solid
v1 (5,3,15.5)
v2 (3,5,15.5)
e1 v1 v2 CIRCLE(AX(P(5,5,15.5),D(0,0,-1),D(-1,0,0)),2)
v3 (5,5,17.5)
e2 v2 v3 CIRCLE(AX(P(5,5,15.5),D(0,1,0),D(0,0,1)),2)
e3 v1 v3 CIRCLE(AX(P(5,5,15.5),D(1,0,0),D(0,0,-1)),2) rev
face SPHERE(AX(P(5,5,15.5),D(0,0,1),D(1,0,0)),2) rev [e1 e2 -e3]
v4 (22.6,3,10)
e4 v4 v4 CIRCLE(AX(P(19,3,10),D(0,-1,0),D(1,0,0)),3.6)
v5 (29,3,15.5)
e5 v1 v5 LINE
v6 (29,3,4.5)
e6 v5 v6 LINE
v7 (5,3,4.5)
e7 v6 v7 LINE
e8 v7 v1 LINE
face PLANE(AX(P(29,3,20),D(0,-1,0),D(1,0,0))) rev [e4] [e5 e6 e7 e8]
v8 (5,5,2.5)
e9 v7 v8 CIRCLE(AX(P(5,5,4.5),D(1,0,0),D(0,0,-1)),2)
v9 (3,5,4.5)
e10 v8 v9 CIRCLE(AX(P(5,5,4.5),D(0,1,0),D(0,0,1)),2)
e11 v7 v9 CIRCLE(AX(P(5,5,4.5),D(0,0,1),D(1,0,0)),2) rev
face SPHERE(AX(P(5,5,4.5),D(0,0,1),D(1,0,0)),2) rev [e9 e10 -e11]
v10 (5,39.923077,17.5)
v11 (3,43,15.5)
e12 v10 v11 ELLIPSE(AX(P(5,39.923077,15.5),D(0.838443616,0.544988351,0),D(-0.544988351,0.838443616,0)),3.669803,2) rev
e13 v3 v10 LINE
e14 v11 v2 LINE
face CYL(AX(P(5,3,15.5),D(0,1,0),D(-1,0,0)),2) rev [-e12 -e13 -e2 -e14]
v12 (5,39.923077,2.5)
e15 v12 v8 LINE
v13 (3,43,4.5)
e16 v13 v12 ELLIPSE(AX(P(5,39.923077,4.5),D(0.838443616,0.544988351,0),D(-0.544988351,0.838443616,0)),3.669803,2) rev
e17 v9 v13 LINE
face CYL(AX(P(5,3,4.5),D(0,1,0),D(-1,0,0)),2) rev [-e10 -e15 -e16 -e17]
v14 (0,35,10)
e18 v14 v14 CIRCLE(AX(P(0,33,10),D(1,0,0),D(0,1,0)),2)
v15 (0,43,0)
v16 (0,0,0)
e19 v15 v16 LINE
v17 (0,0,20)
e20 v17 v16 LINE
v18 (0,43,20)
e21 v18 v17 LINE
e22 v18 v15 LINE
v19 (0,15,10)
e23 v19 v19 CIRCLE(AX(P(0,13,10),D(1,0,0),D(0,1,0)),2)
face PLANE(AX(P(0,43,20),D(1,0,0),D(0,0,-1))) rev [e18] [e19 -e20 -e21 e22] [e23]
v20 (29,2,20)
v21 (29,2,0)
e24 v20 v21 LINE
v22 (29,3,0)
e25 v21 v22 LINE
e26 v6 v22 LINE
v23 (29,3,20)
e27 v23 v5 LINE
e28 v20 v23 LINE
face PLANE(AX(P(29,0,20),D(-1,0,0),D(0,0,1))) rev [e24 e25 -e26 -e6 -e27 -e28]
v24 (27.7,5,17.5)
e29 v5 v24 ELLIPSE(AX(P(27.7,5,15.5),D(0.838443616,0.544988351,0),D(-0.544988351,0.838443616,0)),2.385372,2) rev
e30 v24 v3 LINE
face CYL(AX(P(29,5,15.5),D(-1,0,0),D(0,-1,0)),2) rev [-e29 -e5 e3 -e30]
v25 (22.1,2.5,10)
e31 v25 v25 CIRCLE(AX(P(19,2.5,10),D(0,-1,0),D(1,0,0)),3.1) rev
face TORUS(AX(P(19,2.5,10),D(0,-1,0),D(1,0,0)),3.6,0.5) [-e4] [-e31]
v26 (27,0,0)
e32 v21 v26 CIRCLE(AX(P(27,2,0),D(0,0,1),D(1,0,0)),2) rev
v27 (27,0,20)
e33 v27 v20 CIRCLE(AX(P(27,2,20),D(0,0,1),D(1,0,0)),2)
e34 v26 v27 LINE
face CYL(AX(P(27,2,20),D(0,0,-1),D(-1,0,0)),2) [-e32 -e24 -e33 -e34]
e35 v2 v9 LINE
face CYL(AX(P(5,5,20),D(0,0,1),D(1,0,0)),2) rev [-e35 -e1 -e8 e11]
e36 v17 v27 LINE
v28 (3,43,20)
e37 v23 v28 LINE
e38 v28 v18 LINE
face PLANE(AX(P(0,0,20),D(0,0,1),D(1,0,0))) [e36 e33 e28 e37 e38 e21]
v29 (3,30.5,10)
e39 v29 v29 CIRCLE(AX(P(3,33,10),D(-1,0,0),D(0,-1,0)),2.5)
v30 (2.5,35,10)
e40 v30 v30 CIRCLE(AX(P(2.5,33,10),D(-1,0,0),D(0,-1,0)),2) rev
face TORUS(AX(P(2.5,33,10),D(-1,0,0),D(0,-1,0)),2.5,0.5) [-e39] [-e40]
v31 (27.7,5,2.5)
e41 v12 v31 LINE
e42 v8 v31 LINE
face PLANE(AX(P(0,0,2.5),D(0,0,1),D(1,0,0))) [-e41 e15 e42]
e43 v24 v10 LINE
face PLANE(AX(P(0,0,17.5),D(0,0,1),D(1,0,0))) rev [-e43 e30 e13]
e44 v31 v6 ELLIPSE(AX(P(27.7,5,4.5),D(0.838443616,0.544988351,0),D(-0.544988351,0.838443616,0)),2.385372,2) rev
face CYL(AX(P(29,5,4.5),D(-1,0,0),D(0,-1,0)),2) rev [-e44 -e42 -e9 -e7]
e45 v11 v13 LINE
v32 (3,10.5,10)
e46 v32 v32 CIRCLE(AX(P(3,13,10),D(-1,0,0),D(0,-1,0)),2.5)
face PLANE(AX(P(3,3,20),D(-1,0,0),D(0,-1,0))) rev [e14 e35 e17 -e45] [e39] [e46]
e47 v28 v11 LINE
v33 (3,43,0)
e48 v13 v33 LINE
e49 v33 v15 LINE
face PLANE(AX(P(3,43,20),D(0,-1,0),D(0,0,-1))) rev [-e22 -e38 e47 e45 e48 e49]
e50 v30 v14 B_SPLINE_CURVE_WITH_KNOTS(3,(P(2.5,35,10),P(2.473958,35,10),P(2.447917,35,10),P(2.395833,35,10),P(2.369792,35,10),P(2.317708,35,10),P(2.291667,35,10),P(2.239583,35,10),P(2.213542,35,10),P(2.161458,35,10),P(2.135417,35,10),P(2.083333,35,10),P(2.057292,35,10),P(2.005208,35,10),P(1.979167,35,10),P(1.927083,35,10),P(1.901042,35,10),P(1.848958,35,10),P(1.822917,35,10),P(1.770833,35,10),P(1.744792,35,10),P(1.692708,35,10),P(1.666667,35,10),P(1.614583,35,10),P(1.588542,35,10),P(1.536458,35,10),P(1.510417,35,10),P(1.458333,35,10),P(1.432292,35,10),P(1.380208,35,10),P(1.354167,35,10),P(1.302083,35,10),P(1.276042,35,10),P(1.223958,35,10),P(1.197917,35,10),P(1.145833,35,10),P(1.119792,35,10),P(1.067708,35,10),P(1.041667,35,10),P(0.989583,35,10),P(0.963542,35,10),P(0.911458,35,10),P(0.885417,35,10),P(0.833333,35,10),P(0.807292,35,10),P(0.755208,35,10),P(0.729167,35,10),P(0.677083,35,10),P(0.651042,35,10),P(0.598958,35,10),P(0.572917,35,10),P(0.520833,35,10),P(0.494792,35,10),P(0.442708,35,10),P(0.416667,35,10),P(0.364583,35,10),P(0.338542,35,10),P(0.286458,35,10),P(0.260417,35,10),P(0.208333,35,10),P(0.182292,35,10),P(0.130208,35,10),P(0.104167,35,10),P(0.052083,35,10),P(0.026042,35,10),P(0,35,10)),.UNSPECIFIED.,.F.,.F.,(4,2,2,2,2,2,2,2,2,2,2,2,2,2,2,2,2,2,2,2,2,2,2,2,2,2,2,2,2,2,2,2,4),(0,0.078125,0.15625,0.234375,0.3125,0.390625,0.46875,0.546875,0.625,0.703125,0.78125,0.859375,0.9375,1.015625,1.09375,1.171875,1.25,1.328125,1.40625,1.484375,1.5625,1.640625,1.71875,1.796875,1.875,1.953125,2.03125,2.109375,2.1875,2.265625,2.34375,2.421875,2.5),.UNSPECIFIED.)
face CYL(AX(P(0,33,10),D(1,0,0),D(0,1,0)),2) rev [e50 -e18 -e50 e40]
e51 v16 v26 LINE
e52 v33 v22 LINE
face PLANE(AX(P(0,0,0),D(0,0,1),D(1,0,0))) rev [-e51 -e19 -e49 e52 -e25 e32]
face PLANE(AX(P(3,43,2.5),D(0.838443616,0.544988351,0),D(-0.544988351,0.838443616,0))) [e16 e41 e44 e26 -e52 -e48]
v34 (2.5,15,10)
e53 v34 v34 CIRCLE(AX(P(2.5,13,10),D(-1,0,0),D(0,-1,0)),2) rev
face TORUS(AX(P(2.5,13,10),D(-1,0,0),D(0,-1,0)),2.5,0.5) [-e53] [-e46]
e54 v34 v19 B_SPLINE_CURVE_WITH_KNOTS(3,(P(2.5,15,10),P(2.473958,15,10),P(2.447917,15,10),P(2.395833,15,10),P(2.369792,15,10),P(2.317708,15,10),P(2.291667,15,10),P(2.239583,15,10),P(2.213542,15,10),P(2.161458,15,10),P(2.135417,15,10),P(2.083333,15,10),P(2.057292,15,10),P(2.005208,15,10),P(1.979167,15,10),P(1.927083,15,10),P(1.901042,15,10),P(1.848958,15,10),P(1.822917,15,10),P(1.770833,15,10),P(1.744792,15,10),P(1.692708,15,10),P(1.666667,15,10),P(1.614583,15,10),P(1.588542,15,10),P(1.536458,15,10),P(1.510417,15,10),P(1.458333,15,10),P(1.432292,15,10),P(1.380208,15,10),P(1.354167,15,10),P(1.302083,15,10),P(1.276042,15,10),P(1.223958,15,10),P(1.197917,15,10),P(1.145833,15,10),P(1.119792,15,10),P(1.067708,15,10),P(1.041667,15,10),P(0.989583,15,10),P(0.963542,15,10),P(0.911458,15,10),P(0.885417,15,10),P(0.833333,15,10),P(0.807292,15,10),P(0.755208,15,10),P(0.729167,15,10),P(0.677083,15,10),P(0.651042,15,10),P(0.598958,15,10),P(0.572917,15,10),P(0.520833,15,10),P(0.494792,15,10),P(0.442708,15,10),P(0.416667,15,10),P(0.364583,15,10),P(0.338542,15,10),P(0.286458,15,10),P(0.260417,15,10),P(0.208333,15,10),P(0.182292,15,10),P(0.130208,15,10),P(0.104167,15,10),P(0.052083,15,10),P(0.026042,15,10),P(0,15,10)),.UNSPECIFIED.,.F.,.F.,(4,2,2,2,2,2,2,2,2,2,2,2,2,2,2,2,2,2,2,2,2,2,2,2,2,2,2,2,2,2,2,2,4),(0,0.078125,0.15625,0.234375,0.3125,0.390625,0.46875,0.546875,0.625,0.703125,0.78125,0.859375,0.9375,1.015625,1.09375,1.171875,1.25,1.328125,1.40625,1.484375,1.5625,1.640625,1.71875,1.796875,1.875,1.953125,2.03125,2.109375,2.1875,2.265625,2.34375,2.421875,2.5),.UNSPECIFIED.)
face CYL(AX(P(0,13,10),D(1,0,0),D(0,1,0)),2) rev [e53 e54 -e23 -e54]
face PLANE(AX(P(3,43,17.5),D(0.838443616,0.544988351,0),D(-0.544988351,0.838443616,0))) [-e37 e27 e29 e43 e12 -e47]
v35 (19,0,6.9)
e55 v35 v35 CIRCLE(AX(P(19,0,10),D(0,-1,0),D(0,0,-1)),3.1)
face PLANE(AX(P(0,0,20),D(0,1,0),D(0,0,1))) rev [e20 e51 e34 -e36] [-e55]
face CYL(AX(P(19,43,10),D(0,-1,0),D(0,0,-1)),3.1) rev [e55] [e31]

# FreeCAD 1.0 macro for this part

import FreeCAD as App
import Part
import Sketcher

V = App.Vector
Q = App.Units.Quantity


def edges_at(feature, points):
    """Names of the edges that pass closest to the given points."""
    edges = feature.Shape.Edges
    near = lambda p: min(range(len(edges)), key=lambda i: edges[i].distToShape(Part.Vertex(*p))[0])
    return sorted({f"Edge{near(p) + 1}" for p in points})

doc = App.newDocument("Part")
body = doc.addObject("PartDesign::Body", "Body")

sketch1 = body.newObject("Sketcher::SketchObject", "Sketch")
sketch1.AttachmentSupport = (doc.getObject("XY_Plane"), [""])
sketch1.MapMode = "FlatFace"
sketch1.addGeometry([
    Part.LineSegment(V(0, 43, 0), V(0, 0, 0)),
    Part.LineSegment(V(0, 0, 0), V(29, 0, 0)),
    Part.LineSegment(V(29, 0, 0), V(29, 3, 0)),
    Part.LineSegment(V(29, 3, 0), V(3, 3, 0)),
    Part.LineSegment(V(3, 3, 0), V(3, 43, 0)),
    Part.LineSegment(V(3, 43, 0), V(0, 43, 0)),
], False)
sketch1.addConstraint([
    Sketcher.Constraint("Coincident", 0, 2, 1, 1),
    Sketcher.Constraint("Coincident", 1, 2, 2, 1),
    Sketcher.Constraint("Coincident", 2, 2, 3, 1),
    Sketcher.Constraint("Coincident", 3, 2, 4, 1),
    Sketcher.Constraint("Coincident", 4, 2, 5, 1),
    Sketcher.Constraint("Coincident", 5, 2, 0, 1),
    Sketcher.Constraint("Vertical", 0),
    Sketcher.Constraint("Horizontal", 1),
    Sketcher.Constraint("Vertical", 2),
    Sketcher.Constraint("Horizontal", 3),
    Sketcher.Constraint("Vertical", 4),
    Sketcher.Constraint("Horizontal", 5),
    Sketcher.Constraint("Coincident", 0, 2, -1, 1),
    Sketcher.Constraint("Equal", 5, 2),
    Sketcher.Constraint("DistanceX", 1, 1, 1, 2, Q("29 mm")),
    Sketcher.Constraint("DistanceX", 3, 2, 3, 1, Q("26 mm")),
    Sketcher.Constraint("DistanceY", 0, 2, 0, 1, Q("43 mm")),
])
pad1 = body.newObject("PartDesign::Pad", "Pad")
pad1.Profile = sketch1
pad1.Length = 20

sketch2 = body.newObject("Sketcher::SketchObject", "Sketch001")
sketch2.AttachmentSupport = (doc.getObject("XY_Plane"), [""])
sketch2.MapMode = "FlatFace"
sketch2.AttachmentOffset = App.Placement(V(0, 0, 20), App.Rotation())
sketch2.addGeometry([
    Part.LineSegment(V(29, 3, 0), V(3, 43, 0)),
    Part.LineSegment(V(3, 43, 0), V(3, 3, 0)),
    Part.LineSegment(V(3, 3, 0), V(29, 3, 0)),
], False)
sketch2.addConstraint([
    Sketcher.Constraint("Coincident", 0, 2, 1, 1),
    Sketcher.Constraint("Coincident", 1, 2, 2, 1),
    Sketcher.Constraint("Coincident", 2, 2, 0, 1),
    Sketcher.Constraint("Vertical", 1),
    Sketcher.Constraint("Horizontal", 2),
    Sketcher.Constraint("DistanceX", 2, 1, 2, 2, Q("26 mm")),
    Sketcher.Constraint("DistanceY", 1, 2, 1, 1, Q("40 mm")),
    Sketcher.Constraint("DistanceX", -1, 1, 0, 2, Q("3 mm")),
    Sketcher.Constraint("DistanceY", -1, 1, 0, 2, Q("43 mm")),
])
pad2 = body.newObject("PartDesign::Pad", "Pad001")
pad2.Profile = sketch2
pad2.Length = 2.5
pad2.Reversed = True

sketch3 = body.newObject("Sketcher::SketchObject", "Sketch002")
sketch3.AttachmentSupport = (doc.getObject("XY_Plane"), [""])
sketch3.MapMode = "FlatFace"
sketch3.addGeometry([
    Part.LineSegment(V(3, 43, 0), V(29, 3, 0)),
    Part.LineSegment(V(29, 3, 0), V(3, 3, 0)),
    Part.LineSegment(V(3, 3, 0), V(3, 43, 0)),
], False)
sketch3.addConstraint([
    Sketcher.Constraint("Coincident", 0, 2, 1, 1),
    Sketcher.Constraint("Coincident", 1, 2, 2, 1),
    Sketcher.Constraint("Coincident", 2, 2, 0, 1),
    Sketcher.Constraint("Horizontal", 1),
    Sketcher.Constraint("Vertical", 2),
    Sketcher.Constraint("DistanceX", 1, 2, 1, 1, Q("26 mm")),
    Sketcher.Constraint("DistanceY", 2, 1, 2, 2, Q("40 mm")),
    Sketcher.Constraint("DistanceX", -1, 1, 0, 2, Q("29 mm")),
    Sketcher.Constraint("DistanceY", -1, 1, 0, 2, Q("3 mm")),
])
pad3 = body.newObject("PartDesign::Pad", "Pad002")
pad3.Profile = sketch3
pad3.Length = 2.5

sketch4 = body.newObject("Sketcher::SketchObject", "Sketch003")
sketch4.AttachmentSupport = (doc.getObject("YZ_Plane"), [""])
sketch4.MapMode = "FlatFace"
sketch4.AttachmentOffset = App.Placement(V(0, 0, 3), App.Rotation())
sketch4.addGeometry([
    Part.Circle(V(33, 10, 0), V(0, 0, 1), 2),
    Part.Circle(V(13, 10, 0), V(0, 0, 1), 2),
], False)
sketch4.addConstraint([
    Sketcher.Constraint("Equal", 0, 1),
    Sketcher.Constraint("Horizontal", 0, 3, 1, 3),
    Sketcher.Constraint("Diameter", 0, Q("4 mm")),
    Sketcher.Constraint("DistanceX", -1, 1, 0, 3, Q("33 mm")),
    Sketcher.Constraint("DistanceY", -1, 1, 0, 3, Q("10 mm")),
    Sketcher.Constraint("DistanceX", -1, 1, 1, 3, Q("13 mm")),
])
pocket1 = body.newObject("PartDesign::Pocket", "Pocket")
pocket1.Profile = sketch4
pocket1.Type = "ThroughAll"

sketch5 = body.newObject("Sketcher::SketchObject", "Sketch004")
sketch5.AttachmentSupport = (doc.getObject("XZ_Plane"), [""])
sketch5.MapMode = "FlatFace"
sketch5.addGeometry(Part.Circle(V(19, 10, 0), V(0, 0, 1), 3.1), False)
sketch5.addConstraint([
    Sketcher.Constraint("Diameter", 0, Q("6.2 mm")),
    Sketcher.Constraint("DistanceX", -1, 1, 0, 3, Q("19 mm")),
    Sketcher.Constraint("DistanceY", -1, 1, 0, 3, Q("10 mm")),
])
pocket2 = body.newObject("PartDesign::Pocket", "Pocket001")
pocket2.Profile = sketch5
pocket2.Type = "ThroughAll"
doc.recompute()

fillet = body.newObject("PartDesign::Fillet", "Fillet")
fillet.Base = (pocket2, edges_at(pocket2, [
    (29, 0, 10),
    (3, 3, 10),
    (3, 23, 17.5),
    (16, 3, 17.5),
    (3, 23, 2.5),
    (16, 3, 2.5),
]))
fillet.Radius = 2
doc.recompute()

fillet2 = body.newObject("PartDesign::Fillet", "Fillet001")
fillet2.Base = (fillet, edges_at(fillet, [(3, 31, 10), (3, 11, 10), (19, 3, 13.1)]))
fillet2.Radius = 0.5

doc.recompute()
